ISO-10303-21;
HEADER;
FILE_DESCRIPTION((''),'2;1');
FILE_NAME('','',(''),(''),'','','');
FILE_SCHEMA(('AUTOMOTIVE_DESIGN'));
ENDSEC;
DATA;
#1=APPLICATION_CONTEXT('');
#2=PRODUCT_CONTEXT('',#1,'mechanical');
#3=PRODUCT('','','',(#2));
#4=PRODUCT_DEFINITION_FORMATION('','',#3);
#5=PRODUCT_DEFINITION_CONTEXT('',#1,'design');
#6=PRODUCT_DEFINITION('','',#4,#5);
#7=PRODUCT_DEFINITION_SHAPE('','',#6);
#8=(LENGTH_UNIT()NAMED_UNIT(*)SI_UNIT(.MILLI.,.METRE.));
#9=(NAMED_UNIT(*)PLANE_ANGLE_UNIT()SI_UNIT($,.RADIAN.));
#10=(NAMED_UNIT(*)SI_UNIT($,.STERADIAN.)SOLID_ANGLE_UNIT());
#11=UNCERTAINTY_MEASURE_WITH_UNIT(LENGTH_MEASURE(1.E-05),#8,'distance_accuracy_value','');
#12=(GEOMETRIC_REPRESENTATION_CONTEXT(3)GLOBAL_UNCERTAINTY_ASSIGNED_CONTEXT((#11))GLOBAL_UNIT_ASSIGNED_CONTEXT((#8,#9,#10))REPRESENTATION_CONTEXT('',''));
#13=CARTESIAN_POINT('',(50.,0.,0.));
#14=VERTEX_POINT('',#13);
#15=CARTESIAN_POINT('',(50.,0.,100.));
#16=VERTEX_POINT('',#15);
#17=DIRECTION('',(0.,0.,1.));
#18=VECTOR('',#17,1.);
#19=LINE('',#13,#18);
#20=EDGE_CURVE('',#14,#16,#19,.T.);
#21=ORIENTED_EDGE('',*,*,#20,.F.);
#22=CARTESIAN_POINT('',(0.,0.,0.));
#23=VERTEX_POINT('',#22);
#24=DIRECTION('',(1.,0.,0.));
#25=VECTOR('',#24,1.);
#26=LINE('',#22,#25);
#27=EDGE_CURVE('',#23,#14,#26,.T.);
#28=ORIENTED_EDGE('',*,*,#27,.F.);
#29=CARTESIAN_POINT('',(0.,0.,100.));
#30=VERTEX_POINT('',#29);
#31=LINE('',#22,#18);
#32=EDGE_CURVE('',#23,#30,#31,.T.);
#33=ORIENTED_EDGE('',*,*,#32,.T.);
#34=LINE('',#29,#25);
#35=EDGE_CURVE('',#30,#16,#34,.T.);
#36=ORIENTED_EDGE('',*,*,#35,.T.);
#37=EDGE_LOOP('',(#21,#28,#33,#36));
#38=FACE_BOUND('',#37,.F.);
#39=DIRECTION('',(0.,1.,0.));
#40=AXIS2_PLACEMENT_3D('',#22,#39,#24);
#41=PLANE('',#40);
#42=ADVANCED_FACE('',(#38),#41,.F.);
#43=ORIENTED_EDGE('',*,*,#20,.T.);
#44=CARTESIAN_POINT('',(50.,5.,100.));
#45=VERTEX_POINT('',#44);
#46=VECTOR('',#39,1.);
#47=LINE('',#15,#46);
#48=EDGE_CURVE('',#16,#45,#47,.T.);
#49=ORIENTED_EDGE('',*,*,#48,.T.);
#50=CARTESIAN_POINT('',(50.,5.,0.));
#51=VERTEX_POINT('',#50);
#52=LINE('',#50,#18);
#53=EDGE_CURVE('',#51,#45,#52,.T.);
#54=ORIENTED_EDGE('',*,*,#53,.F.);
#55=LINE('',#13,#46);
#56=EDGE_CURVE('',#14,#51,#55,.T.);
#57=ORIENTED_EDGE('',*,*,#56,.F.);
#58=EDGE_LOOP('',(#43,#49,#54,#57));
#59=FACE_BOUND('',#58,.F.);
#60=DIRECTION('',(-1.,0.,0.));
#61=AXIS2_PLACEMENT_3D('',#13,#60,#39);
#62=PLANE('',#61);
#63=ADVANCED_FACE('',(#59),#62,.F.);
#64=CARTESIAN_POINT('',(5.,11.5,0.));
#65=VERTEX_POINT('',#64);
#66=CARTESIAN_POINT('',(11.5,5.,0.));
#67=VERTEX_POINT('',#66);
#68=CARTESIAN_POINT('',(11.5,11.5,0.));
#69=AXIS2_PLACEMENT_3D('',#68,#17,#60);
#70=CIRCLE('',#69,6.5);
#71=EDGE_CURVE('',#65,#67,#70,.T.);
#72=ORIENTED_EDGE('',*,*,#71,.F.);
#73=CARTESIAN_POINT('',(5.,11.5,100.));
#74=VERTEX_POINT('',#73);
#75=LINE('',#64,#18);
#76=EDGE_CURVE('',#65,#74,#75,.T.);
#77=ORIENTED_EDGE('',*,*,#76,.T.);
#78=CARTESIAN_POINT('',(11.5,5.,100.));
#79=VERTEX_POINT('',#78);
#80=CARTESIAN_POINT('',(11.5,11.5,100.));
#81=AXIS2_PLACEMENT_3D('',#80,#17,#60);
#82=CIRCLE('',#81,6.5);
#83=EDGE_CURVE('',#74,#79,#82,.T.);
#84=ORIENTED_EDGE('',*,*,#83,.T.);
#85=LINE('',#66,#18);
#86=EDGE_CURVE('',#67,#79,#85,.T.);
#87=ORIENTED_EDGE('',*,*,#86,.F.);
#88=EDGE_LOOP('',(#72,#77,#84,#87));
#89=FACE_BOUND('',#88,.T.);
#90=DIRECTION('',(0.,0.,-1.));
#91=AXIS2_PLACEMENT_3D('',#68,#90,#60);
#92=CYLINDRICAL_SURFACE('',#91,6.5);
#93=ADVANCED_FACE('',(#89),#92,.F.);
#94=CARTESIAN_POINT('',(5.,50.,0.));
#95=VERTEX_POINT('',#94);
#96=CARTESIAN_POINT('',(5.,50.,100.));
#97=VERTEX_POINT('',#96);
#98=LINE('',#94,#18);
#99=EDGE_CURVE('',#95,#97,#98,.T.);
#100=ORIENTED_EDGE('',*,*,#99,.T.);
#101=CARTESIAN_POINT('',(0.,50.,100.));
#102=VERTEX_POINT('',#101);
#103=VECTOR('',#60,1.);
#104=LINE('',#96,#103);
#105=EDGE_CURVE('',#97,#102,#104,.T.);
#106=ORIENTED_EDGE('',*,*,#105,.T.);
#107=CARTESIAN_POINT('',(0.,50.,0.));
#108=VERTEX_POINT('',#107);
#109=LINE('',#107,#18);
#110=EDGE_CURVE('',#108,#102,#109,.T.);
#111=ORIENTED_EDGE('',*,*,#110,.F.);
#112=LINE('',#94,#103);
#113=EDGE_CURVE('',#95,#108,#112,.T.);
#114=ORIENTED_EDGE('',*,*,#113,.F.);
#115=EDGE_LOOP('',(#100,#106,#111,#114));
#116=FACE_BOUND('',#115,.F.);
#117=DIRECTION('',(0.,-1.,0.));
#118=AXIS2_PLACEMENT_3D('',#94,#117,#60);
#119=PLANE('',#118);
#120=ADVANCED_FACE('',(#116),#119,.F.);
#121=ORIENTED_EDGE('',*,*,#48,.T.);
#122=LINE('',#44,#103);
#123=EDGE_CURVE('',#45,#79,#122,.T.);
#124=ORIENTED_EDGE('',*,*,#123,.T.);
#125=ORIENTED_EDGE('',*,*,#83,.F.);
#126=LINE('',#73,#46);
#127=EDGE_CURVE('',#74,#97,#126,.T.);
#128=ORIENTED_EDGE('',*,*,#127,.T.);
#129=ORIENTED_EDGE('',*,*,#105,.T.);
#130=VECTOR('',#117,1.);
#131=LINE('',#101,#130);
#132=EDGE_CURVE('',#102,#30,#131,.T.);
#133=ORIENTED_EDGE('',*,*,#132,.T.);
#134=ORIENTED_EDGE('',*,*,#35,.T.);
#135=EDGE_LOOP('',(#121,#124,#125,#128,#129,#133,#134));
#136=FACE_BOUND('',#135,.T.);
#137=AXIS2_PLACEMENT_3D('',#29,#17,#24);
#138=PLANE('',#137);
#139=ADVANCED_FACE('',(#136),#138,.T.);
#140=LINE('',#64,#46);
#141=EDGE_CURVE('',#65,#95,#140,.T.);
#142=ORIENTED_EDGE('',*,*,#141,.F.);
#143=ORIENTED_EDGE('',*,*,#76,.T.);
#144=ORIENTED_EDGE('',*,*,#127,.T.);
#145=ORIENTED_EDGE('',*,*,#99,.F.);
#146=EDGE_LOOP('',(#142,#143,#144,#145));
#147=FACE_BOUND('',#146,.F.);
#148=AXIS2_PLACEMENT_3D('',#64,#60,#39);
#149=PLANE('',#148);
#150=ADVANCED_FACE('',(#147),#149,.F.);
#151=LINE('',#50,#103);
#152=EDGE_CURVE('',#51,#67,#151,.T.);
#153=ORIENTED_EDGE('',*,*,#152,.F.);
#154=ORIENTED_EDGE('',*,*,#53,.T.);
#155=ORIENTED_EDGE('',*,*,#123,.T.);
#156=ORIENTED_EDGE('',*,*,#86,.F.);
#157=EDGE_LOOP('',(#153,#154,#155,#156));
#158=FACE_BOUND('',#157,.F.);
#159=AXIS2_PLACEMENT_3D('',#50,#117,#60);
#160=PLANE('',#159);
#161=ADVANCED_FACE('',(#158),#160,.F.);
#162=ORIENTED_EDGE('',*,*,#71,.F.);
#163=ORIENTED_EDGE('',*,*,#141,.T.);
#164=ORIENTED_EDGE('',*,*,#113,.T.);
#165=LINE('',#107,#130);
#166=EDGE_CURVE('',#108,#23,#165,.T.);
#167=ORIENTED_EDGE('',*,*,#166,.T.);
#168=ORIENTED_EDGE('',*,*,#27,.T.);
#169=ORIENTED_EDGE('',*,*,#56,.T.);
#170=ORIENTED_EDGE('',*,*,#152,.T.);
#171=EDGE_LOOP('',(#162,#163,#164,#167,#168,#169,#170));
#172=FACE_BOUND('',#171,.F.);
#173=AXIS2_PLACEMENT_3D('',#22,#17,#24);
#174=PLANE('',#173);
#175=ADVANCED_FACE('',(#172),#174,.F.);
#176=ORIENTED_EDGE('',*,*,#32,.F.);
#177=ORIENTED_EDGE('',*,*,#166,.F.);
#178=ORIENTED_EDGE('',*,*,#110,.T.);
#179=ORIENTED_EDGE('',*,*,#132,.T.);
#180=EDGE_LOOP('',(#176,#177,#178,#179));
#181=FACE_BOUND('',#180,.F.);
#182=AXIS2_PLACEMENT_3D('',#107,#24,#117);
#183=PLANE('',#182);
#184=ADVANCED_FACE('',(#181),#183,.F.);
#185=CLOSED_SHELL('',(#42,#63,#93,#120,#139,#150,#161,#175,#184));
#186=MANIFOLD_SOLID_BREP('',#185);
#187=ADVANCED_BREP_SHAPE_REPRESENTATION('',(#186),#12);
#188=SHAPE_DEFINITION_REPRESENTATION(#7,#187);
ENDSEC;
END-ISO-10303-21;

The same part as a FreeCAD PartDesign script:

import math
import FreeCAD as App
import Part
import Sketcher
Q = App.Units.Quantity

doc = App.newDocument("Part")
body = doc.addObject("PartDesign::Body", "Body")

# Sketch on XY plane
sketch1 = body.newObject("Sketcher::SketchObject", "Sketch")
sketch1.AttachmentSupport = (doc.getObject("XY_Plane"), [""])
sketch1.MapMode = "FlatFace"
sketch1.addGeometry([
    Part.LineSegment(App.Vector(50, 0, 0), App.Vector(50, 5, 0)),  # 0
    Part.LineSegment(App.Vector(50, 5, 0), App.Vector(12, 5, 0)),  # 1
    Part.ArcOfCircle(Part.Circle(App.Vector(12, 12, 0), App.Vector(0, 0, 1), 6), math.radians(180), math.radians(270)),  # 2
    Part.LineSegment(App.Vector(5, 12, 0), App.Vector(5, 50, 0)),  # 3
    Part.LineSegment(App.Vector(5, 50, 0), App.Vector(0, 50, 0)),  # 4
    Part.LineSegment(App.Vector(0, 50, 0), App.Vector(0, 0, 0)),  # 5
    Part.LineSegment(App.Vector(0, 0, 0), App.Vector(50, 0, 0)),  # 6
], False)
sketch1.addConstraint([
    Sketcher.Constraint("Coincident", 0, 2, 1, 1),
    Sketcher.Constraint("Tangent", 1, 2, 2, 2),
    Sketcher.Constraint("Tangent", 2, 1, 3, 1),
    Sketcher.Constraint("Coincident", 3, 2, 4, 1),
    Sketcher.Constraint("Coincident", 4, 2, 5, 1),
    Sketcher.Constraint("Coincident", 5, 2, 6, 1),
    Sketcher.Constraint("Coincident", 6, 2, 0, 1),
    Sketcher.Constraint("Vertical", 0),
    Sketcher.Constraint("Horizontal", 1),
    Sketcher.Constraint("Vertical", 3),
    Sketcher.Constraint("Horizontal", 4),
    Sketcher.Constraint("Vertical", 5),
    Sketcher.Constraint("Horizontal", 6),
    Sketcher.Constraint("Coincident", 5, 2, -1, 1),
    Sketcher.Constraint("Equal", 4, 0),
    Sketcher.Constraint("Equal", 1, 3),
    Sketcher.Constraint("Radius", 2, Q("6.5 mm")),
    Sketcher.Constraint("DistanceX", 4, 2, 4, 1, Q("5 mm")),
    Sketcher.Constraint("DistanceX", 6, 1, 6, 2, Q("50 mm")),
])
pad1 = body.newObject("PartDesign::Pad", "Pad")
pad1.Profile = sketch1
pad1.Length = 100

doc.recompute()
